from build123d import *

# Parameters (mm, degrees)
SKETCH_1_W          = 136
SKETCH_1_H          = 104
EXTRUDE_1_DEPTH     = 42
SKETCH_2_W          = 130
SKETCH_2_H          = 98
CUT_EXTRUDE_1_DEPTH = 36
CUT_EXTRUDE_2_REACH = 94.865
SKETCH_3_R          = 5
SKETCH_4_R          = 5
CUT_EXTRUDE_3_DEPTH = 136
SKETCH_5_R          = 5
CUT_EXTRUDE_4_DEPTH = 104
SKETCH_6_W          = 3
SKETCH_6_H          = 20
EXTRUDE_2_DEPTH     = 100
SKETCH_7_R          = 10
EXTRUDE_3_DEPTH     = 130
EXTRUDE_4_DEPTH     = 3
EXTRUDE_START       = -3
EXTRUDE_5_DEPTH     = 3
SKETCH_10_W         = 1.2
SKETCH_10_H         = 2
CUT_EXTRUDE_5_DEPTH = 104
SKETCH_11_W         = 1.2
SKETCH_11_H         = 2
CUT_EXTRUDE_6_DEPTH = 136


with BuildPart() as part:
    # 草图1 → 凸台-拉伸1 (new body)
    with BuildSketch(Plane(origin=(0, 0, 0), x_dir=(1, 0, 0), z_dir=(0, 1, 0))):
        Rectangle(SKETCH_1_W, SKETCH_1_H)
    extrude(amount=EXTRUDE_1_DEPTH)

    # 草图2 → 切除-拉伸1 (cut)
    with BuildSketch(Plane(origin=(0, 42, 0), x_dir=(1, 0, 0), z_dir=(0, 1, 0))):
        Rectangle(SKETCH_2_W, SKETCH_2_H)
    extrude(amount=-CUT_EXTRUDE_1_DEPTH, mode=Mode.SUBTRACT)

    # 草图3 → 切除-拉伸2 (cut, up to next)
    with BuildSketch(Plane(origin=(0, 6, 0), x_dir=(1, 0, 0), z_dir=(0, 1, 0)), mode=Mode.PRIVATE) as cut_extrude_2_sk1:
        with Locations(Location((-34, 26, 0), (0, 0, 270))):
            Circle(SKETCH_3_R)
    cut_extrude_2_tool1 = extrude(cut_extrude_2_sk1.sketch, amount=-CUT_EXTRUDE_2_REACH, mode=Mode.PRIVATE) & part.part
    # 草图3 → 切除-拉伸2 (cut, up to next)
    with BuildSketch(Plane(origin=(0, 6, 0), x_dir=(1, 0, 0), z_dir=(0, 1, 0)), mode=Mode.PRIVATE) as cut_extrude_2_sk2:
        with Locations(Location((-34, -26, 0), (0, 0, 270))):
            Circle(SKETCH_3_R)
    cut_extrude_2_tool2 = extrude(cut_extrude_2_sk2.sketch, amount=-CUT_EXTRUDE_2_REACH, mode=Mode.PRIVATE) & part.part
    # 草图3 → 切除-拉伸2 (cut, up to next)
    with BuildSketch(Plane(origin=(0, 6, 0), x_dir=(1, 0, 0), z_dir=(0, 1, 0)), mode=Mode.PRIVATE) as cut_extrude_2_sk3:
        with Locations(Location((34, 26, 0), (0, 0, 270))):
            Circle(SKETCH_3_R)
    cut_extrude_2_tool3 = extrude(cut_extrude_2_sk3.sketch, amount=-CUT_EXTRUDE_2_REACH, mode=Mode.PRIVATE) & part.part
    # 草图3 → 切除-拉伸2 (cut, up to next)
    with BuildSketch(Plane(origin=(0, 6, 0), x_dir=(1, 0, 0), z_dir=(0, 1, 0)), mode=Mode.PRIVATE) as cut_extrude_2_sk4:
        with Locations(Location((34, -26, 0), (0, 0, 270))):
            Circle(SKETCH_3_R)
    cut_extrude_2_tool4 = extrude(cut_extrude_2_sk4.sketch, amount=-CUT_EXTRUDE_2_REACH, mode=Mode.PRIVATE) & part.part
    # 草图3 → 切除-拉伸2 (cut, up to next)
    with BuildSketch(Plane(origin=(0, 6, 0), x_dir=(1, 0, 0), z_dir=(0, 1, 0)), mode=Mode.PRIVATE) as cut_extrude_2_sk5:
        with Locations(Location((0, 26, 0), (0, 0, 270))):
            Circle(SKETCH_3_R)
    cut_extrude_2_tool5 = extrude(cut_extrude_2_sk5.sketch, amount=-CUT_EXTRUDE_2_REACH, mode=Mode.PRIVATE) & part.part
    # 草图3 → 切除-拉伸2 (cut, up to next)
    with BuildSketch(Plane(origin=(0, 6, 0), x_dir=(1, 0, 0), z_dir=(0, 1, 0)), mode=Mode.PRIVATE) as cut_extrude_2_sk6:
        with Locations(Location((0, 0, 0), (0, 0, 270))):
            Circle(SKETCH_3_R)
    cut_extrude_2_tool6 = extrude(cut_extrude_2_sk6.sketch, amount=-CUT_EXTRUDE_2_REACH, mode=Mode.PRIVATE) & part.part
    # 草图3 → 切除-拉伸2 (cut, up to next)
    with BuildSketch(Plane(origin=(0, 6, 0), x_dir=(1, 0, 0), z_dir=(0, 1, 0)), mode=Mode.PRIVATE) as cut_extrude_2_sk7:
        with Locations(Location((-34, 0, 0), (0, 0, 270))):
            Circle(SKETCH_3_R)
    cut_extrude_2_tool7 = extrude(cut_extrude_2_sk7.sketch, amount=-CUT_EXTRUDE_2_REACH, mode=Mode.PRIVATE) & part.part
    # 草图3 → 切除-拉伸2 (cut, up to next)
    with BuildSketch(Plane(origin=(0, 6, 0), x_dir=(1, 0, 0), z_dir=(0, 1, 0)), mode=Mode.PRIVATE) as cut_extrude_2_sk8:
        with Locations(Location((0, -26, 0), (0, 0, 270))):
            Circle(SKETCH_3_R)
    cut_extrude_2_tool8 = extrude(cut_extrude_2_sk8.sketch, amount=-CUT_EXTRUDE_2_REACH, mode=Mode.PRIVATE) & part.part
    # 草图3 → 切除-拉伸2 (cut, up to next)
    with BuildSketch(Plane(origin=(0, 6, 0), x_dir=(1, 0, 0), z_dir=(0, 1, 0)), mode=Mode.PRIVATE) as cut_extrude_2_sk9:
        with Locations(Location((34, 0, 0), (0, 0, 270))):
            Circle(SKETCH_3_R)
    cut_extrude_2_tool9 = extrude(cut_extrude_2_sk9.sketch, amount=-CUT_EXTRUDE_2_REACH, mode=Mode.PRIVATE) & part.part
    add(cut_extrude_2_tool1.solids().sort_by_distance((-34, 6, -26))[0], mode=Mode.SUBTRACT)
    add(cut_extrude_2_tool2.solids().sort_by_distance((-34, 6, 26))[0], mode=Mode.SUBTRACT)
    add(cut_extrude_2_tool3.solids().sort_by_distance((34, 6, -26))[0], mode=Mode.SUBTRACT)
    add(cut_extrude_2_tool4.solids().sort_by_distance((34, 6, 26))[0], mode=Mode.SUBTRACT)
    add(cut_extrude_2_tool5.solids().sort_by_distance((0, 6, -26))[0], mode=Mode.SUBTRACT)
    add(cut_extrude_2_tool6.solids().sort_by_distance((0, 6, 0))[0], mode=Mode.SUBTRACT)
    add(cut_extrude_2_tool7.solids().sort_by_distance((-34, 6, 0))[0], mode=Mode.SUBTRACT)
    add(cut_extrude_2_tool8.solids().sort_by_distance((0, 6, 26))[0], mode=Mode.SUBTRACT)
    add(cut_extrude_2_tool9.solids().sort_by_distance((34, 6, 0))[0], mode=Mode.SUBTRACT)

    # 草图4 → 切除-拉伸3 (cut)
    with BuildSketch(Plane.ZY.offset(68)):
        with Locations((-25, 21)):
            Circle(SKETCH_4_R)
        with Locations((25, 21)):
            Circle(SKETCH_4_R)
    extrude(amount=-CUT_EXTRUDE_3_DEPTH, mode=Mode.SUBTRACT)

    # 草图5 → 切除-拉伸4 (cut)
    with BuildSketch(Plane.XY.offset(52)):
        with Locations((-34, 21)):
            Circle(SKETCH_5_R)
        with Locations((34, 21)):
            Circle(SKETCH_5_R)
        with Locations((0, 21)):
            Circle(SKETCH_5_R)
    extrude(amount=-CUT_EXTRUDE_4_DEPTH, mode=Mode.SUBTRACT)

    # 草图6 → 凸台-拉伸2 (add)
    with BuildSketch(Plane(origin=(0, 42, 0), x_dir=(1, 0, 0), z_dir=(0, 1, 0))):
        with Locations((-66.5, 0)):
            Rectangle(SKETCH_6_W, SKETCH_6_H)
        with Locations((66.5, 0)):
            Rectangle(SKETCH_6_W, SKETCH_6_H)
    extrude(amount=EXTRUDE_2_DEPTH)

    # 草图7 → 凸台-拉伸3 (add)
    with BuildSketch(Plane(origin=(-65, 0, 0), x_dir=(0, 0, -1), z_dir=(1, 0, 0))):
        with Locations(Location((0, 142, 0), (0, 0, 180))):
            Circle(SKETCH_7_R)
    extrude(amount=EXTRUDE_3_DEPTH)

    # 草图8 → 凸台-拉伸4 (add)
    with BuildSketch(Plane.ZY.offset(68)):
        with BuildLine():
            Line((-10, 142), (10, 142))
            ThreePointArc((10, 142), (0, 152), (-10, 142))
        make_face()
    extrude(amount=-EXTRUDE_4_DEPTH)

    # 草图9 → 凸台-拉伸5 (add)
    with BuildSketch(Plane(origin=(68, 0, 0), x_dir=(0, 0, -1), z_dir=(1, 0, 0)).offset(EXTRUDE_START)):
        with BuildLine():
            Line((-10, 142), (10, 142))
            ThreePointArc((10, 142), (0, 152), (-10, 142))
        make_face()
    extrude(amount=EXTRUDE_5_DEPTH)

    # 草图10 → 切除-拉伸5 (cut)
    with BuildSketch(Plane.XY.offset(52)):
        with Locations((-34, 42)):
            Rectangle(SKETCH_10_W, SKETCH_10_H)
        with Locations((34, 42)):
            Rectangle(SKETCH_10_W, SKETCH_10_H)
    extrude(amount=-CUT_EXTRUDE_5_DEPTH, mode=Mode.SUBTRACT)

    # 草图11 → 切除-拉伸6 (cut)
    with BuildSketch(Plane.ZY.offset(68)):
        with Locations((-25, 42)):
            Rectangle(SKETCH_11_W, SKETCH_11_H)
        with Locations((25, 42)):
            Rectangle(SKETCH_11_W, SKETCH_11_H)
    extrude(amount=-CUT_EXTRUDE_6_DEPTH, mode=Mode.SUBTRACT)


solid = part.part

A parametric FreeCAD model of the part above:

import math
import FreeCAD as App
import Part
import Sketcher
from FreeCAD import Vector

doc = App.newDocument("Part")
body = doc.addObject("PartDesign::Body", "Body")

sketch1 = body.newObject("Sketcher::SketchObject", "Sketch")
sketch1.AttachmentSupport = (doc.getObject("XZ_Plane"), [""])
sketch1.MapMode = "FlatFace"
sketch1.addGeometry([
    Part.LineSegment(Vector(-68, -52, 0), Vector(-68, 52, 0)),
    Part.LineSegment(Vector(-68, 52, 0), Vector(68, 52, 0)),
    Part.LineSegment(Vector(68, 52, 0), Vector(68, -52, 0)),
    Part.LineSegment(Vector(68, -52, 0), Vector(-68, -52, 0)),
], False)
sketch1.addConstraint([
    Sketcher.Constraint("Coincident", 0, 2, 1, 1),
    Sketcher.Constraint("Coincident", 1, 2, 2, 1),
    Sketcher.Constraint("Coincident", 2, 2, 3, 1),
    Sketcher.Constraint("Coincident", 3, 2, 0, 1),
    Sketcher.Constraint("Vertical", 0),
    Sketcher.Constraint("Horizontal", 1),
    Sketcher.Constraint("Vertical", 2),
    Sketcher.Constraint("Horizontal", 3),
    Sketcher.Constraint("Symmetric", 0, 2, 2, 2, -1, 1),
    Sketcher.Constraint("DistanceX", 1, 1, 1, 2, 136.0),
    Sketcher.Constraint("DistanceY", 0, 1, 0, 2, 104.0),
])
pad1 = body.newObject("PartDesign::Pad", "Pad")
pad1.Profile = sketch1
pad1.Length = 42
pad1.Reversed = True

sketch2 = body.newObject("Sketcher::SketchObject", "Sketch001")
sketch2.AttachmentSupport = (doc.getObject("XZ_Plane"), [""])
sketch2.MapMode = "FlatFace"
sketch2.AttachmentOffset = App.Placement(Vector(0, 0, -42), App.Rotation())
sketch2.addGeometry([
    Part.LineSegment(Vector(-65, -49, 0), Vector(-65, 49, 0)),
    Part.LineSegment(Vector(-65, 49, 0), Vector(65, 49, 0)),
    Part.LineSegment(Vector(65, 49, 0), Vector(65, -49, 0)),
    Part.LineSegment(Vector(65, -49, 0), Vector(-65, -49, 0)),
], False)
sketch2.addConstraint([
    Sketcher.Constraint("Coincident", 0, 2, 1, 1),
    Sketcher.Constraint("Coincident", 1, 2, 2, 1),
    Sketcher.Constraint("Coincident", 2, 2, 3, 1),
    Sketcher.Constraint("Coincident", 3, 2, 0, 1),
    Sketcher.Constraint("Vertical", 0),
    Sketcher.Constraint("Horizontal", 1),
    Sketcher.Constraint("Vertical", 2),
    Sketcher.Constraint("Horizontal", 3),
    Sketcher.Constraint("Symmetric", 0, 2, 2, 2, -1, 1),
    Sketcher.Constraint("DistanceX", 1, 1, 1, 2, 130.0),
    Sketcher.Constraint("DistanceY", 0, 1, 0, 2, 98.0),
])
pocket1 = body.newObject("PartDesign::Pocket", "Pocket")
pocket1.Profile = sketch2
pocket1.Length = 36
pocket1.Reversed = True

sketch3 = body.newObject("Sketcher::SketchObject", "Sketch002")
sketch3.AttachmentSupport = (doc.getObject("XZ_Plane"), [""])
sketch3.MapMode = "FlatFace"
sketch3.AttachmentOffset = App.Placement(Vector(0, 0, -6), App.Rotation())
sketch3.addGeometry(Part.Circle(Vector(-34, -26, 0), Vector(0, 0, 1), 5), False)
sketch3.addConstraint([
    Sketcher.Constraint("Diameter", 0, 10.0),
    Sketcher.Constraint("DistanceX", 0, 3, -1, 1, 34.0),
    Sketcher.Constraint("DistanceY", 0, 3, -1, 1, 26.0),
])
pocket2 = body.newObject("PartDesign::Pocket", "Pocket001")
pocket2.Profile = sketch3
pocket2.Type = "UpToFirst"
pocket2.Reversed = True

sketch4 = body.newObject("Sketcher::SketchObject", "Sketch003")
sketch4.AttachmentSupport = (doc.getObject("XZ_Plane"), [""])
sketch4.MapMode = "FlatFace"
sketch4.AttachmentOffset = App.Placement(Vector(0, 0, -6), App.Rotation())
sketch4.addGeometry(Part.Circle(Vector(-34, 26, 0), Vector(0, 0, 1), 5), False)
sketch4.addConstraint([
    Sketcher.Constraint("Diameter", 0, 10.0),
    Sketcher.Constraint("DistanceX", 0, 3, -1, 1, 34.0),
    Sketcher.Constraint("DistanceY", -1, 1, 0, 3, 26.0),
])
pocket3 = body.newObject("PartDesign::Pocket", "Pocket002")
pocket3.Profile = sketch4
pocket3.Type = "UpToFirst"
pocket3.Reversed = True

sketch5 = body.newObject("Sketcher::SketchObject", "Sketch004")
sketch5.AttachmentSupport = (doc.getObject("XZ_Plane"), [""])
sketch5.MapMode = "FlatFace"
sketch5.AttachmentOffset = App.Placement(Vector(0, 0, -6), App.Rotation())
sketch5.addGeometry(Part.Circle(Vector(34, -26, 0), Vector(0, 0, 1), 5), False)
sketch5.addConstraint([
    Sketcher.Constraint("Diameter", 0, 10.0),
    Sketcher.Constraint("DistanceX", -1, 1, 0, 3, 34.0),
    Sketcher.Constraint("DistanceY", 0, 3, -1, 1, 26.0),
])
pocket4 = body.newObject("PartDesign::Pocket", "Pocket003")
pocket4.Profile = sketch5
pocket4.Type = "UpToFirst"
pocket4.Reversed = True

sketch6 = body.newObject("Sketcher::SketchObject", "Sketch005")
sketch6.AttachmentSupport = (doc.getObject("XZ_Plane"), [""])
sketch6.MapMode = "FlatFace"
sketch6.AttachmentOffset = App.Placement(Vector(0, 0, -6), App.Rotation())
sketch6.addGeometry(Part.Circle(Vector(34, 26, 0), Vector(0, 0, 1), 5), False)
sketch6.addConstraint([
    Sketcher.Constraint("Diameter", 0, 10.0),
    Sketcher.Constraint("DistanceX", -1, 1, 0, 3, 34.0),
    Sketcher.Constraint("DistanceY", -1, 1, 0, 3, 26.0),
])
pocket5 = body.newObject("PartDesign::Pocket", "Pocket004")
pocket5.Profile = sketch6
pocket5.Type = "UpToFirst"
pocket5.Reversed = True

sketch7 = body.newObject("Sketcher::SketchObject", "Sketch006")
sketch7.AttachmentSupport = (doc.getObject("XZ_Plane"), [""])
sketch7.MapMode = "FlatFace"
sketch7.AttachmentOffset = App.Placement(Vector(0, 0, -6), App.Rotation())
sketch7.addGeometry(Part.Circle(Vector(0, -26, 0), Vector(0, 0, 1), 5), False)
sketch7.addConstraint([
    Sketcher.Constraint("PointOnObject", 0, 3, -2),
    Sketcher.Constraint("Diameter", 0, 10.0),
    Sketcher.Constraint("DistanceY", 0, 3, -1, 1, 26.0),
])
pocket6 = body.newObject("PartDesign::Pocket", "Pocket005")
pocket6.Profile = sketch7
pocket6.Type = "UpToFirst"
pocket6.Reversed = True

sketch8 = body.newObject("Sketcher::SketchObject", "Sketch007")
sketch8.AttachmentSupport = (doc.getObject("XZ_Plane"), [""])
sketch8.MapMode = "FlatFace"
sketch8.AttachmentOffset = App.Placement(Vector(0, 0, -6), App.Rotation())
sketch8.addGeometry(Part.Circle(Vector(0, 0, 0), Vector(0, 0, 1), 5), False)
sketch8.addConstraint([
    Sketcher.Constraint("Coincident", 0, 3, -1, 1),
    Sketcher.Constraint("Diameter", 0, 10.0),
])
pocket7 = body.newObject("PartDesign::Pocket", "Pocket006")
pocket7.Profile = sketch8
pocket7.Type = "UpToFirst"
pocket7.Reversed = True

sketch9 = body.newObject("Sketcher::SketchObject", "Sketch008")
sketch9.AttachmentSupport = (doc.getObject("XZ_Plane"), [""])
sketch9.MapMode = "FlatFace"
sketch9.AttachmentOffset = App.Placement(Vector(0, 0, -6), App.Rotation())
sketch9.addGeometry(Part.Circle(Vector(-34, 0, 0), Vector(0, 0, 1), 5), False)
sketch9.addConstraint([
    Sketcher.Constraint("PointOnObject", 0, 3, -1),
    Sketcher.Constraint("Diameter", 0, 10.0),
    Sketcher.Constraint("DistanceX", 0, 3, -1, 1, 34.0),
])
pocket8 = body.newObject("PartDesign::Pocket", "Pocket007")
pocket8.Profile = sketch9
pocket8.Type = "UpToFirst"
pocket8.Reversed = True

sketch10 = body.newObject("Sketcher::SketchObject", "Sketch009")
sketch10.AttachmentSupport = (doc.getObject("XZ_Plane"), [""])
sketch10.MapMode = "FlatFace"
sketch10.AttachmentOffset = App.Placement(Vector(0, 0, -6), App.Rotation())
sketch10.addGeometry(Part.Circle(Vector(0, 26, 0), Vector(0, 0, 1), 5), False)
sketch10.addConstraint([
    Sketcher.Constraint("PointOnObject", 0, 3, -2),
    Sketcher.Constraint("Diameter", 0, 10.0),
    Sketcher.Constraint("DistanceY", -1, 1, 0, 3, 26.0),
])
pocket9 = body.newObject("PartDesign::Pocket", "Pocket008")
pocket9.Profile = sketch10
pocket9.Type = "UpToFirst"
pocket9.Reversed = True

sketch11 = body.newObject("Sketcher::SketchObject", "Sketch010")
sketch11.AttachmentSupport = (doc.getObject("XZ_Plane"), [""])
sketch11.MapMode = "FlatFace"
sketch11.AttachmentOffset = App.Placement(Vector(0, 0, -6), App.Rotation())
sketch11.addGeometry(Part.Circle(Vector(34, 0, 0), Vector(0, 0, 1), 5), False)
sketch11.addConstraint([
    Sketcher.Constraint("PointOnObject", 0, 3, -1),
    Sketcher.Constraint("Diameter", 0, 10.0),
    Sketcher.Constraint("DistanceX", -1, 1, 0, 3, 34.0),
])
pocket10 = body.newObject("PartDesign::Pocket", "Pocket009")
pocket10.Profile = sketch11
pocket10.Type = "UpToFirst"
pocket10.Reversed = True

sketch12 = body.newObject("Sketcher::SketchObject", "Sketch011")
sketch12.AttachmentSupport = (doc.getObject("YZ_Plane"), [""])
sketch12.MapMode = "FlatFace"
sketch12.AttachmentOffset = App.Placement(Vector(0, 0, -68), App.Rotation())
sketch12.addGeometry([
    Part.Circle(Vector(21, -25, 0), Vector(0, 0, 1), 5),
    Part.Circle(Vector(21, 25, 0), Vector(0, 0, 1), 5),
], False)
sketch12.addConstraint([
    Sketcher.Constraint("Equal", 0, 1),
    Sketcher.Constraint("Symmetric", 0, 3, 1, 3, -1),
    Sketcher.Constraint("Diameter", 0, 10.0),
    Sketcher.Constraint("DistanceX", -1, 1, 0, 3, 21.0),
    Sketcher.Constraint("DistanceY", 0, 3, -1, 1, 25.0),
])
pocket11 = body.newObject("PartDesign::Pocket", "Pocket010")
pocket11.Profile = sketch12
pocket11.Length = 136
pocket11.Reversed = True

sketch13 = body.newObject("Sketcher::SketchObject", "Sketch012")
sketch13.AttachmentSupport = (doc.getObject("XY_Plane"), [""])
sketch13.MapMode = "FlatFace"
sketch13.AttachmentOffset = App.Placement(Vector(0, 0, 52), App.Rotation())
sketch13.addGeometry([
    Part.Circle(Vector(-34, 21, 0), Vector(0, 0, 1), 5),
    Part.Circle(Vector(34, 21, 0), Vector(0, 0, 1), 5),
    Part.Circle(Vector(0, 21, 0), Vector(0, 0, 1), 5),
], False)
sketch13.addConstraint([
    Sketcher.Constraint("Equal", 0, 1),
    Sketcher.Constraint("Equal", 1, 2),
    Sketcher.Constraint("Symmetric", 0, 3, 1, 3, -2),
    Sketcher.Constraint("PointOnObject", 2, 3, -2),
    Sketcher.Constraint("Horizontal", 1, 3, 2, 3),
    Sketcher.Constraint("Diameter", 0, 10.0),
    Sketcher.Constraint("DistanceX", 0, 3, -1, 1, 34.0),
    Sketcher.Constraint("DistanceY", -1, 1, 0, 3, 21.0),
])
pocket12 = body.newObject("PartDesign::Pocket", "Pocket011")
pocket12.Profile = sketch13
pocket12.Length = 104

sketch14 = body.newObject("Sketcher::SketchObject", "Sketch013")
sketch14.AttachmentSupport = (doc.getObject("XZ_Plane"), [""])
sketch14.MapMode = "FlatFace"
sketch14.AttachmentOffset = App.Placement(Vector(0, 0, -42), App.Rotation())
sketch14.addGeometry([
    Part.LineSegment(Vector(-68, -10, 0), Vector(-68, 10, 0)),
    Part.LineSegment(Vector(-68, 10, 0), Vector(-65, 10, 0)),
    Part.LineSegment(Vector(-65, 10, 0), Vector(-65, -10, 0)),
    Part.LineSegment(Vector(-65, -10, 0), Vector(-68, -10, 0)),
    Part.LineSegment(Vector(65, -10, 0), Vector(65, 10, 0)),
    Part.LineSegment(Vector(65, 10, 0), Vector(68, 10, 0)),
    Part.LineSegment(Vector(68, 10, 0), Vector(68, -10, 0)),
    Part.LineSegment(Vector(68, -10, 0), Vector(65, -10, 0)),
], False)
sketch14.addConstraint([
    Sketcher.Constraint("Coincident", 0, 2, 1, 1),
    Sketcher.Constraint("Coincident", 1, 2, 2, 1),
    Sketcher.Constraint("Coincident", 2, 2, 3, 1),
    Sketcher.Constraint("Coincident", 3, 2, 0, 1),
    Sketcher.Constraint("Coincident", 4, 2, 5, 1),
    Sketcher.Constraint("Coincident", 5, 2, 6, 1),
    Sketcher.Constraint("Coincident", 6, 2, 7, 1),
    Sketcher.Constraint("Coincident", 7, 2, 4, 1),
    Sketcher.Constraint("Vertical", 0),
    Sketcher.Constraint("Horizontal", 1),
    Sketcher.Constraint("Vertical", 2),
    Sketcher.Constraint("Horizontal", 3),
    Sketcher.Constraint("Vertical", 4),
    Sketcher.Constraint("Horizontal", 5),
    Sketcher.Constraint("Vertical", 6),
    Sketcher.Constraint("Horizontal", 7),
    Sketcher.Constraint("Symmetric", 2, 2, 4, 2, -1, 1),
    Sketcher.Constraint("Symmetric", 0, 2, 6, 2, -1, 1),
    Sketcher.Constraint("Horizontal", 1, 2, 4, 2),
    Sketcher.Constraint("DistanceX", 1, 1, 1, 2, 3.0),
    Sketcher.Constraint("DistanceY", 0, 1, 0, 2, 20.0),
    Sketcher.Constraint("DistanceX", 0, 2, -1, 1, 68.0),
])
pad2 = body.newObject("PartDesign::Pad", "Pad001")
pad2.Profile = sketch14
pad2.Length = 100
pad2.Reversed = True

sketch15 = body.newObject("Sketcher::SketchObject", "Sketch014")
sketch15.AttachmentSupport = (doc.getObject("YZ_Plane"), [""])
sketch15.MapMode = "FlatFace"
sketch15.AttachmentOffset = App.Placement(Vector(0, 0, -65), App.Rotation())
sketch15.addGeometry(Part.Circle(Vector(142, 0, 0), Vector(0, 0, 1), 10), False)
sketch15.addConstraint([
    Sketcher.Constraint("PointOnObject", 0, 3, -1),
    Sketcher.Constraint("Diameter", 0, 20.0),
    Sketcher.Constraint("DistanceX", -1, 1, 0, 3, 142.0),
])
pad3 = body.newObject("PartDesign::Pad", "Pad002")
pad3.Profile = sketch15
pad3.Length = 130

sketch16 = body.newObject("Sketcher::SketchObject", "Sketch015")
sketch16.AttachmentSupport = (doc.getObject("YZ_Plane"), [""])
sketch16.MapMode = "FlatFace"
sketch16.AttachmentOffset = App.Placement(Vector(0, 0, -68), App.Rotation())
sketch16.addGeometry([
    Part.LineSegment(Vector(142, -10, 0), Vector(142, 10, 0)),
    Part.ArcOfCircle(Part.Circle(Vector(142, 0, 0), Vector(0, 0, 1), 10), math.radians(-90), math.radians(90)),
], False)
sketch16.addConstraint([
    Sketcher.Constraint("Coincident", 0, 1, 1, 1),
    Sketcher.Constraint("Coincident", 1, 2, 0, 2),
    Sketcher.Constraint("Vertical", 0),
    Sketcher.Constraint("PointOnObject", 1, 3, -1),
    Sketcher.Constraint("Vertical", 1, 3, 0, 1),
    Sketcher.Constraint("Radius", 1, 10.0),
    Sketcher.Constraint("DistanceX", -1, 1, 1, 3, 142.0),
])
pad4 = body.newObject("PartDesign::Pad", "Pad003")
pad4.Profile = sketch16
pad4.Length = 3

sketch17 = body.newObject("Sketcher::SketchObject", "Sketch016")
sketch17.AttachmentSupport = (doc.getObject("YZ_Plane"), [""])
sketch17.MapMode = "FlatFace"
sketch17.AttachmentOffset = App.Placement(Vector(0, 0, 65), App.Rotation())
sketch17.addGeometry([
    Part.LineSegment(Vector(142, 10, 0), Vector(142, -10, 0)),
    Part.ArcOfCircle(Part.Circle(Vector(142, 0, 0), Vector(0, 0, 1), 10), math.radians(-90), math.radians(90)),
], False)
sketch17.addConstraint([
    Sketcher.Constraint("Coincident", 0, 1, 1, 2),
    Sketcher.Constraint("Coincident", 1, 1, 0, 2),
    Sketcher.Constraint("Vertical", 0),
    Sketcher.Constraint("PointOnObject", 1, 3, -1),
    Sketcher.Constraint("Vertical", 1, 3, 0, 1),
    Sketcher.Constraint("Radius", 1, 10.0),
    Sketcher.Constraint("DistanceX", -1, 1, 1, 3, 142.0),
])
pad5 = body.newObject("PartDesign::Pad", "Pad004")
pad5.Profile = sketch17
pad5.Length = 3

sketch18 = body.newObject("Sketcher::SketchObject", "Sketch017")
sketch18.AttachmentSupport = (doc.getObject("XY_Plane"), [""])
sketch18.MapMode = "FlatFace"
sketch18.AttachmentOffset = App.Placement(Vector(0, 0, 52), App.Rotation())
sketch18.addGeometry([
    Part.LineSegment(Vector(-34.6, 43, 0), Vector(-34.6, 41, 0)),
    Part.LineSegment(Vector(-34.6, 41, 0), Vector(-33.4, 41, 0)),
    Part.LineSegment(Vector(-33.4, 41, 0), Vector(-33.4, 43, 0)),
    Part.LineSegment(Vector(-33.4, 43, 0), Vector(-34.6, 43, 0)),
    Part.LineSegment(Vector(33.4, 43, 0), Vector(33.4, 41, 0)),
    Part.LineSegment(Vector(33.4, 41, 0), Vector(34.6, 41, 0)),
    Part.LineSegment(Vector(34.6, 41, 0), Vector(34.6, 43, 0)),
    Part.LineSegment(Vector(34.6, 43, 0), Vector(33.4, 43, 0)),
], False)
sketch18.addConstraint([
    Sketcher.Constraint("Coincident", 0, 2, 1, 1),
    Sketcher.Constraint("Coincident", 1, 2, 2, 1),
    Sketcher.Constraint("Coincident", 2, 2, 3, 1),
    Sketcher.Constraint("Coincident", 3, 2, 0, 1),
    Sketcher.Constraint("Coincident", 4, 2, 5, 1),
    Sketcher.Constraint("Coincident", 5, 2, 6, 1),
    Sketcher.Constraint("Coincident", 6, 2, 7, 1),
    Sketcher.Constraint("Coincident", 7, 2, 4, 1),
    Sketcher.Constraint("Vertical", 0),
    Sketcher.Constraint("Horizontal", 1),
    Sketcher.Constraint("Vertical", 2),
    Sketcher.Constraint("Horizontal", 3),
    Sketcher.Constraint("Vertical", 4),
    Sketcher.Constraint("Horizontal", 5),
    Sketcher.Constraint("Vertical", 6),
    Sketcher.Constraint("Horizontal", 7),
    Sketcher.Constraint("Symmetric", 1, 2, 4, 2, -2),
    Sketcher.Constraint("Symmetric", 3, 2, 6, 2, -2),
    Sketcher.Constraint("DistanceY", 0, 2, 0, 1, 2.0),
    Sketcher.Constraint("DistanceX", 1, 1, 1, 2, 1.2),
    Sketcher.Constraint("DistanceY", -1, 1, 0, 2, 41.0),
    Sketcher.Constraint("DistanceX", 0, 2, 4, 2, 68.0),
])
pocket13 = body.newObject("PartDesign::Pocket", "Pocket012")
pocket13.Profile = sketch18
pocket13.Length = 104

sketch19 = body.newObject("Sketcher::SketchObject", "Sketch018")
sketch19.AttachmentSupport = (doc.getObject("YZ_Plane"), [""])
sketch19.MapMode = "FlatFace"
sketch19.AttachmentOffset = App.Placement(Vector(0, 0, -68), App.Rotation())
sketch19.addGeometry([
    Part.LineSegment(Vector(43, -25.6, 0), Vector(41, -25.6, 0)),
    Part.LineSegment(Vector(41, -25.6, 0), Vector(41, -24.4, 0)),
    Part.LineSegment(Vector(41, -24.4, 0), Vector(43, -24.4, 0)),
    Part.LineSegment(Vector(43, -24.4, 0), Vector(43, -25.6, 0)),
    Part.LineSegment(Vector(43, 24.4, 0), Vector(41, 24.4, 0)),
    Part.LineSegment(Vector(41, 24.4, 0), Vector(41, 25.6, 0)),
    Part.LineSegment(Vector(41, 25.6, 0), Vector(43, 25.6, 0)),
    Part.LineSegment(Vector(43, 25.6, 0), Vector(43, 24.4, 0)),
], False)
sketch19.addConstraint([
    Sketcher.Constraint("Coincident", 0, 2, 1, 1),
    Sketcher.Constraint("Coincident", 1, 2, 2, 1),
    Sketcher.Constraint("Coincident", 2, 2, 3, 1),
    Sketcher.Constraint("Coincident", 3, 2, 0, 1),
    Sketcher.Constraint("Coincident", 4, 2, 5, 1),
    Sketcher.Constraint("Coincident", 5, 2, 6, 1),
    Sketcher.Constraint("Coincident", 6, 2, 7, 1),
    Sketcher.Constraint("Coincident", 7, 2, 4, 1),
    Sketcher.Constraint("Horizontal", 0),
    Sketcher.Constraint("Vertical", 1),
    Sketcher.Constraint("Horizontal", 2),
    Sketcher.Constraint("Vertical", 3),
    Sketcher.Constraint("Horizontal", 4),
    Sketcher.Constraint("Vertical", 5),
    Sketcher.Constraint("Horizontal", 6),
    Sketcher.Constraint("Vertical", 7),
    Sketcher.Constraint("Symmetric", 1, 2, 4, 2, -1),
    Sketcher.Constraint("Symmetric", 3, 2, 6, 2, -1),
    Sketcher.Constraint("DistanceX", 0, 2, 0, 1, 2.0),
    Sketcher.Constraint("DistanceY", 1, 1, 1, 2, 1.2),
    Sketcher.Constraint("DistanceX", -1, 1, 0, 2, 41.0),
    Sketcher.Constraint("DistanceY", 0, 2, 4, 2, 50.0),
])
pocket14 = body.newObject("PartDesign::Pocket", "Pocket013")
pocket14.Profile = sketch19
pocket14.Length = 136
pocket14.Reversed = True

doc.recompute()
